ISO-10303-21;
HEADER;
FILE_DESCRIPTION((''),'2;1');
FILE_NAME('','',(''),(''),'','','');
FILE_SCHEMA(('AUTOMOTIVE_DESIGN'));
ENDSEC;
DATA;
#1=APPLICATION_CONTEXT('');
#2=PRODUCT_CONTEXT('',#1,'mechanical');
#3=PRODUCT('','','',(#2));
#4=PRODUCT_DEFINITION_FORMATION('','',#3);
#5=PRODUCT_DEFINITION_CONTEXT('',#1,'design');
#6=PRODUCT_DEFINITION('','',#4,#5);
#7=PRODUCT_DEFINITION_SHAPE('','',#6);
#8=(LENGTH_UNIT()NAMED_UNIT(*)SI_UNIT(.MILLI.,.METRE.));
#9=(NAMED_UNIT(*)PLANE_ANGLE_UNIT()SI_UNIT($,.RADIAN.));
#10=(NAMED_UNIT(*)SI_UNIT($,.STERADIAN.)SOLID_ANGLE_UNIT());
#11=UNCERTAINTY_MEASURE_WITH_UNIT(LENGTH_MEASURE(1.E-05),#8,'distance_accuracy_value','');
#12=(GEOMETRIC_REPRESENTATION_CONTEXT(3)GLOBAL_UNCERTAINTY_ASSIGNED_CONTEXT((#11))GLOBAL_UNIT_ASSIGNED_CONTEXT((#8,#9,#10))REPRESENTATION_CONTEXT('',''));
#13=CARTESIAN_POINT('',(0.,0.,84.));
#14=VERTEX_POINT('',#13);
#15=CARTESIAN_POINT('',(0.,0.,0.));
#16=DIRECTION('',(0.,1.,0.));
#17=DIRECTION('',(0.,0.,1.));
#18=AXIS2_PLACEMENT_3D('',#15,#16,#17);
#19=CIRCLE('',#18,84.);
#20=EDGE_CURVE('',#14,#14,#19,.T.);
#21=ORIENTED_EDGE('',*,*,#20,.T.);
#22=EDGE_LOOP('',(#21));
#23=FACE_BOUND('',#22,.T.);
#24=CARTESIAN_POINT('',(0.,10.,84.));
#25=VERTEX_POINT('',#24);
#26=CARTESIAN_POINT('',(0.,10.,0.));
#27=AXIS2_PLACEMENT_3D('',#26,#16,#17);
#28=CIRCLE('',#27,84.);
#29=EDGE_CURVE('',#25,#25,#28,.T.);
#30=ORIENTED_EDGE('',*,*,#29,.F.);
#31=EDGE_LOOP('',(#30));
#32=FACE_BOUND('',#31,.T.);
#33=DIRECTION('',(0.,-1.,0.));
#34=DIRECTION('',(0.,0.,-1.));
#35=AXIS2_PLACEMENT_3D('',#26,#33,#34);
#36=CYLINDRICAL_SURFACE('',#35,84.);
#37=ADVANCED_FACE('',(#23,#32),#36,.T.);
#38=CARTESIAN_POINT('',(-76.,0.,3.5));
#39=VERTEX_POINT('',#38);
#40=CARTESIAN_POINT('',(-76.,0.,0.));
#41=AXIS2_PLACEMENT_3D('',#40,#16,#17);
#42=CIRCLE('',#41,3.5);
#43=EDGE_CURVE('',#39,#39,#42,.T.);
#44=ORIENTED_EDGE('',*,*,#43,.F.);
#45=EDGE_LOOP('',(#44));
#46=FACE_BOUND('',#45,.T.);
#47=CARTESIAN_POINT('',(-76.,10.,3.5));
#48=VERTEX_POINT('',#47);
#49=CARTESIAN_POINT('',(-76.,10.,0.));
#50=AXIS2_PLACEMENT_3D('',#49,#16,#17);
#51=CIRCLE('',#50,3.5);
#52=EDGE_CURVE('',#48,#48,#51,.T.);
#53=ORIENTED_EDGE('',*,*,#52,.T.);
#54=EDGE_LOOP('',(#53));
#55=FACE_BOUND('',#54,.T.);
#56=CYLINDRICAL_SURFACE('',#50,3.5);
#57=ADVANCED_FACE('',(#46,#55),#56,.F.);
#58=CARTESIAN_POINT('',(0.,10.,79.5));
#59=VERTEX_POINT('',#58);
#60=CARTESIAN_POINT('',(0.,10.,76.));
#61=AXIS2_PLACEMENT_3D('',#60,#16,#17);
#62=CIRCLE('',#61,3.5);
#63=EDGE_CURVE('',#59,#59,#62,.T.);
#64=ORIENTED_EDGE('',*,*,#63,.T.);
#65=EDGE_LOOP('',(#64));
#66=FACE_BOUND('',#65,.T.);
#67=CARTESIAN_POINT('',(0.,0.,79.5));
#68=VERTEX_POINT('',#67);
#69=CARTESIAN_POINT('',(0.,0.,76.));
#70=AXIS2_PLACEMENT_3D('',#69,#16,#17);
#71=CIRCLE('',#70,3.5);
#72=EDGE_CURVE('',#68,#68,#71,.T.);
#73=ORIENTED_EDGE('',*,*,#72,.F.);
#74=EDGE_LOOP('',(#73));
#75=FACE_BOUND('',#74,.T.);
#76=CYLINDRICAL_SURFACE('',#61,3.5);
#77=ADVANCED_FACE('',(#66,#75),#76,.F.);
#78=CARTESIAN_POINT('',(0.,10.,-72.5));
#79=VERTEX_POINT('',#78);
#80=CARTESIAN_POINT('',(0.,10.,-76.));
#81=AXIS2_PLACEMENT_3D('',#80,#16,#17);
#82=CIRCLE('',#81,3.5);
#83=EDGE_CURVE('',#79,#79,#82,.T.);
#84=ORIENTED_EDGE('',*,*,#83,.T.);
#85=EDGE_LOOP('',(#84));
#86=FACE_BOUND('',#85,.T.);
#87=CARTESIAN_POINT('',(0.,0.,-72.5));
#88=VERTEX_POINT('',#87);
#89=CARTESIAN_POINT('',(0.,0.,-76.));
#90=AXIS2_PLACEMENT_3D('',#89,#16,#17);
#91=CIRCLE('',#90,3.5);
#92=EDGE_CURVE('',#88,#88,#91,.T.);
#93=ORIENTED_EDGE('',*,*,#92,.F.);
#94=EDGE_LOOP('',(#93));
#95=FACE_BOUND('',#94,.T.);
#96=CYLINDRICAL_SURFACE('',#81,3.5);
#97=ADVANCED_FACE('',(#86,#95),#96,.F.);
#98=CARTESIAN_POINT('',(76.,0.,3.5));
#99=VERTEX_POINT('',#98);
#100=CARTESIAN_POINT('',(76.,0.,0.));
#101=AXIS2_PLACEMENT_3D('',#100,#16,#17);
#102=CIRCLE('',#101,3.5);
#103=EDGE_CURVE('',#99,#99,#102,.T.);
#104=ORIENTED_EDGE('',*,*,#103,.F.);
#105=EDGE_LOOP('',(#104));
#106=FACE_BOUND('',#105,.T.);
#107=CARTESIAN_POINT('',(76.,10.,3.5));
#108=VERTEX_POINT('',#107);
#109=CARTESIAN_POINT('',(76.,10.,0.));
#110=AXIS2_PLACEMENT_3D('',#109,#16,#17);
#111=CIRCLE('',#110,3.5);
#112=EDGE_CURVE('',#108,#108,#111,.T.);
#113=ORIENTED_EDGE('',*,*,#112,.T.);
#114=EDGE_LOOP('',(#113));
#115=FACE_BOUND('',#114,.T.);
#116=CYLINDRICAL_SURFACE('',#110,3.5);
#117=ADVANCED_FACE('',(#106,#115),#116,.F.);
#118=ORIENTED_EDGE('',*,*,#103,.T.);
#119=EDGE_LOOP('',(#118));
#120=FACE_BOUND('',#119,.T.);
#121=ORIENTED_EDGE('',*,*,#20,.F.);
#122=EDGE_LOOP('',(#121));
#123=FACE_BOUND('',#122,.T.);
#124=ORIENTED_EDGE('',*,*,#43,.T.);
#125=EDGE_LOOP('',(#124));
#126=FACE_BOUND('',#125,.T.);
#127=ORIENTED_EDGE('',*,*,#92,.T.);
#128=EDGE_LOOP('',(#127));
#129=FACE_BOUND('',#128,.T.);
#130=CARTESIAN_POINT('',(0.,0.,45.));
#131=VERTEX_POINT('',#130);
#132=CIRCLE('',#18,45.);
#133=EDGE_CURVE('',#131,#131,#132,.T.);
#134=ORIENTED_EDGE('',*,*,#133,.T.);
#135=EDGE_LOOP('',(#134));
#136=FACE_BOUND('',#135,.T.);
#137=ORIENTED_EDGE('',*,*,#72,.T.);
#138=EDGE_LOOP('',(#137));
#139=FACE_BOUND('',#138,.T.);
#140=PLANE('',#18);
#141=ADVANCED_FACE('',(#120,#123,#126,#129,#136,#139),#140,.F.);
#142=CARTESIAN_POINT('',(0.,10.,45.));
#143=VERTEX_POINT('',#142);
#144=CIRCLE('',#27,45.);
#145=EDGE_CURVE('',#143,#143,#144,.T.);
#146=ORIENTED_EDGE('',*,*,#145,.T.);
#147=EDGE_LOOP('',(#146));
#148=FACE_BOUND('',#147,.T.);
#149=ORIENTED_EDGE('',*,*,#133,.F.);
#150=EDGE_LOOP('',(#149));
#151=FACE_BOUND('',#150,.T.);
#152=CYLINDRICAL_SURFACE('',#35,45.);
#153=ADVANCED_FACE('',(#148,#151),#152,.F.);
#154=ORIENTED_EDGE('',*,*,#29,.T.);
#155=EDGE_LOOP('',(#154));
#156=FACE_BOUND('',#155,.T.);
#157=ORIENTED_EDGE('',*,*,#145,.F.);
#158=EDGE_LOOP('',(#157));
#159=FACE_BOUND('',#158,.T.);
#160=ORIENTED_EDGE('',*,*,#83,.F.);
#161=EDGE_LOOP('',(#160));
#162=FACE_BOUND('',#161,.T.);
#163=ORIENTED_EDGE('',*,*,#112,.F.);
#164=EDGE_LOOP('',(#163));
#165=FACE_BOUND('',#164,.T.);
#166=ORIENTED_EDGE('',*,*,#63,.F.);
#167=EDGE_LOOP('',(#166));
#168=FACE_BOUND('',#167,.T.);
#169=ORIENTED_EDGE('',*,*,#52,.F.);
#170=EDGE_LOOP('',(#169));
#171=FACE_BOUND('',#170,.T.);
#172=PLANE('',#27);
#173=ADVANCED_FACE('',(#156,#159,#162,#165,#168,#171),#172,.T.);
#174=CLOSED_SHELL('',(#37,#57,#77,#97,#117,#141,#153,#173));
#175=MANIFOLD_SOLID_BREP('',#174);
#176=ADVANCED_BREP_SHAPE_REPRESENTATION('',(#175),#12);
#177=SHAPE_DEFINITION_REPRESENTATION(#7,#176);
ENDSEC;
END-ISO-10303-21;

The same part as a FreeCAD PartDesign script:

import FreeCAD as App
import Part
import Sketcher

V = App.Vector

doc = App.newDocument("Part")
body = doc.addObject("PartDesign::Body", "Body")

sketch1 = body.newObject("Sketcher::SketchObject", "Sketch")
sketch1.AttachmentSupport = (doc.getObject("XZ_Plane"), [""])
sketch1.MapMode = "FlatFace"
sketch1.addGeometry([
    Part.Circle(V(0, 0, 0), V(0, 0, 1), 84),
    Part.Circle(V(0, 0, 0), V(0, 0, 1), 45),
], False)
sketch1.addConstraint([
    Sketcher.Constraint("Coincident", 0, 3, -1, 1),
    Sketcher.Constraint("Coincident", 1, 3, -1, 1),
    Sketcher.Constraint("Diameter", 0, 168.0),
    Sketcher.Constraint("Diameter", 1, 90.0),
])
pad1 = body.newObject("PartDesign::Pad", "Pad")
pad1.Profile = sketch1
pad1.Length = 10
pad1.Reversed = True

sketch2 = body.newObject("Sketcher::SketchObject", "Sketch001")
sketch2.AttachmentSupport = (doc.getObject("XZ_Plane"), [""])
sketch2.MapMode = "FlatFace"
sketch2.AttachmentOffset = App.Placement(V(0, 0, -10), App.Rotation())
sketch2.addGeometry([
    Part.Circle(V(-76, 0, 0), V(0, 0, 1), 3.5),
    Part.Circle(V(0, -76, 0), V(0, 0, 1), 3.5),
    Part.Circle(V(76, 0, 0), V(0, 0, 1), 3.5),
    Part.Circle(V(0, 76, 0), V(0, 0, 1), 3.5),
], False)
sketch2.addConstraint([
    Sketcher.Constraint("Equal", 0, 1),
    Sketcher.Constraint("Equal", 1, 2),
    Sketcher.Constraint("Equal", 2, 3),
    Sketcher.Constraint("Symmetric", 0, 3, 2, 3, -1, 1),
    Sketcher.Constraint("Symmetric", 1, 3, 3, 3, -1, 1),
    Sketcher.Constraint("PointOnObject", 0, 3, -1),
    Sketcher.Constraint("PointOnObject", 1, 3, -2),
    Sketcher.Constraint("Diameter", 0, 7.0),
    Sketcher.Constraint("DistanceX", 0, 3, -1, 1, 76.0),
    Sketcher.Constraint("DistanceY", 1, 3, -1, 1, 76.0),
])
doc.recompute()
hole = body.newObject("PartDesign::Hole", "Hole")
hole.Profile = sketch2
hole.ThreadType = "None"
hole.Diameter = 7
hole.DepthType = "ThroughAll"
hole.Reversed = True

doc.recompute()
